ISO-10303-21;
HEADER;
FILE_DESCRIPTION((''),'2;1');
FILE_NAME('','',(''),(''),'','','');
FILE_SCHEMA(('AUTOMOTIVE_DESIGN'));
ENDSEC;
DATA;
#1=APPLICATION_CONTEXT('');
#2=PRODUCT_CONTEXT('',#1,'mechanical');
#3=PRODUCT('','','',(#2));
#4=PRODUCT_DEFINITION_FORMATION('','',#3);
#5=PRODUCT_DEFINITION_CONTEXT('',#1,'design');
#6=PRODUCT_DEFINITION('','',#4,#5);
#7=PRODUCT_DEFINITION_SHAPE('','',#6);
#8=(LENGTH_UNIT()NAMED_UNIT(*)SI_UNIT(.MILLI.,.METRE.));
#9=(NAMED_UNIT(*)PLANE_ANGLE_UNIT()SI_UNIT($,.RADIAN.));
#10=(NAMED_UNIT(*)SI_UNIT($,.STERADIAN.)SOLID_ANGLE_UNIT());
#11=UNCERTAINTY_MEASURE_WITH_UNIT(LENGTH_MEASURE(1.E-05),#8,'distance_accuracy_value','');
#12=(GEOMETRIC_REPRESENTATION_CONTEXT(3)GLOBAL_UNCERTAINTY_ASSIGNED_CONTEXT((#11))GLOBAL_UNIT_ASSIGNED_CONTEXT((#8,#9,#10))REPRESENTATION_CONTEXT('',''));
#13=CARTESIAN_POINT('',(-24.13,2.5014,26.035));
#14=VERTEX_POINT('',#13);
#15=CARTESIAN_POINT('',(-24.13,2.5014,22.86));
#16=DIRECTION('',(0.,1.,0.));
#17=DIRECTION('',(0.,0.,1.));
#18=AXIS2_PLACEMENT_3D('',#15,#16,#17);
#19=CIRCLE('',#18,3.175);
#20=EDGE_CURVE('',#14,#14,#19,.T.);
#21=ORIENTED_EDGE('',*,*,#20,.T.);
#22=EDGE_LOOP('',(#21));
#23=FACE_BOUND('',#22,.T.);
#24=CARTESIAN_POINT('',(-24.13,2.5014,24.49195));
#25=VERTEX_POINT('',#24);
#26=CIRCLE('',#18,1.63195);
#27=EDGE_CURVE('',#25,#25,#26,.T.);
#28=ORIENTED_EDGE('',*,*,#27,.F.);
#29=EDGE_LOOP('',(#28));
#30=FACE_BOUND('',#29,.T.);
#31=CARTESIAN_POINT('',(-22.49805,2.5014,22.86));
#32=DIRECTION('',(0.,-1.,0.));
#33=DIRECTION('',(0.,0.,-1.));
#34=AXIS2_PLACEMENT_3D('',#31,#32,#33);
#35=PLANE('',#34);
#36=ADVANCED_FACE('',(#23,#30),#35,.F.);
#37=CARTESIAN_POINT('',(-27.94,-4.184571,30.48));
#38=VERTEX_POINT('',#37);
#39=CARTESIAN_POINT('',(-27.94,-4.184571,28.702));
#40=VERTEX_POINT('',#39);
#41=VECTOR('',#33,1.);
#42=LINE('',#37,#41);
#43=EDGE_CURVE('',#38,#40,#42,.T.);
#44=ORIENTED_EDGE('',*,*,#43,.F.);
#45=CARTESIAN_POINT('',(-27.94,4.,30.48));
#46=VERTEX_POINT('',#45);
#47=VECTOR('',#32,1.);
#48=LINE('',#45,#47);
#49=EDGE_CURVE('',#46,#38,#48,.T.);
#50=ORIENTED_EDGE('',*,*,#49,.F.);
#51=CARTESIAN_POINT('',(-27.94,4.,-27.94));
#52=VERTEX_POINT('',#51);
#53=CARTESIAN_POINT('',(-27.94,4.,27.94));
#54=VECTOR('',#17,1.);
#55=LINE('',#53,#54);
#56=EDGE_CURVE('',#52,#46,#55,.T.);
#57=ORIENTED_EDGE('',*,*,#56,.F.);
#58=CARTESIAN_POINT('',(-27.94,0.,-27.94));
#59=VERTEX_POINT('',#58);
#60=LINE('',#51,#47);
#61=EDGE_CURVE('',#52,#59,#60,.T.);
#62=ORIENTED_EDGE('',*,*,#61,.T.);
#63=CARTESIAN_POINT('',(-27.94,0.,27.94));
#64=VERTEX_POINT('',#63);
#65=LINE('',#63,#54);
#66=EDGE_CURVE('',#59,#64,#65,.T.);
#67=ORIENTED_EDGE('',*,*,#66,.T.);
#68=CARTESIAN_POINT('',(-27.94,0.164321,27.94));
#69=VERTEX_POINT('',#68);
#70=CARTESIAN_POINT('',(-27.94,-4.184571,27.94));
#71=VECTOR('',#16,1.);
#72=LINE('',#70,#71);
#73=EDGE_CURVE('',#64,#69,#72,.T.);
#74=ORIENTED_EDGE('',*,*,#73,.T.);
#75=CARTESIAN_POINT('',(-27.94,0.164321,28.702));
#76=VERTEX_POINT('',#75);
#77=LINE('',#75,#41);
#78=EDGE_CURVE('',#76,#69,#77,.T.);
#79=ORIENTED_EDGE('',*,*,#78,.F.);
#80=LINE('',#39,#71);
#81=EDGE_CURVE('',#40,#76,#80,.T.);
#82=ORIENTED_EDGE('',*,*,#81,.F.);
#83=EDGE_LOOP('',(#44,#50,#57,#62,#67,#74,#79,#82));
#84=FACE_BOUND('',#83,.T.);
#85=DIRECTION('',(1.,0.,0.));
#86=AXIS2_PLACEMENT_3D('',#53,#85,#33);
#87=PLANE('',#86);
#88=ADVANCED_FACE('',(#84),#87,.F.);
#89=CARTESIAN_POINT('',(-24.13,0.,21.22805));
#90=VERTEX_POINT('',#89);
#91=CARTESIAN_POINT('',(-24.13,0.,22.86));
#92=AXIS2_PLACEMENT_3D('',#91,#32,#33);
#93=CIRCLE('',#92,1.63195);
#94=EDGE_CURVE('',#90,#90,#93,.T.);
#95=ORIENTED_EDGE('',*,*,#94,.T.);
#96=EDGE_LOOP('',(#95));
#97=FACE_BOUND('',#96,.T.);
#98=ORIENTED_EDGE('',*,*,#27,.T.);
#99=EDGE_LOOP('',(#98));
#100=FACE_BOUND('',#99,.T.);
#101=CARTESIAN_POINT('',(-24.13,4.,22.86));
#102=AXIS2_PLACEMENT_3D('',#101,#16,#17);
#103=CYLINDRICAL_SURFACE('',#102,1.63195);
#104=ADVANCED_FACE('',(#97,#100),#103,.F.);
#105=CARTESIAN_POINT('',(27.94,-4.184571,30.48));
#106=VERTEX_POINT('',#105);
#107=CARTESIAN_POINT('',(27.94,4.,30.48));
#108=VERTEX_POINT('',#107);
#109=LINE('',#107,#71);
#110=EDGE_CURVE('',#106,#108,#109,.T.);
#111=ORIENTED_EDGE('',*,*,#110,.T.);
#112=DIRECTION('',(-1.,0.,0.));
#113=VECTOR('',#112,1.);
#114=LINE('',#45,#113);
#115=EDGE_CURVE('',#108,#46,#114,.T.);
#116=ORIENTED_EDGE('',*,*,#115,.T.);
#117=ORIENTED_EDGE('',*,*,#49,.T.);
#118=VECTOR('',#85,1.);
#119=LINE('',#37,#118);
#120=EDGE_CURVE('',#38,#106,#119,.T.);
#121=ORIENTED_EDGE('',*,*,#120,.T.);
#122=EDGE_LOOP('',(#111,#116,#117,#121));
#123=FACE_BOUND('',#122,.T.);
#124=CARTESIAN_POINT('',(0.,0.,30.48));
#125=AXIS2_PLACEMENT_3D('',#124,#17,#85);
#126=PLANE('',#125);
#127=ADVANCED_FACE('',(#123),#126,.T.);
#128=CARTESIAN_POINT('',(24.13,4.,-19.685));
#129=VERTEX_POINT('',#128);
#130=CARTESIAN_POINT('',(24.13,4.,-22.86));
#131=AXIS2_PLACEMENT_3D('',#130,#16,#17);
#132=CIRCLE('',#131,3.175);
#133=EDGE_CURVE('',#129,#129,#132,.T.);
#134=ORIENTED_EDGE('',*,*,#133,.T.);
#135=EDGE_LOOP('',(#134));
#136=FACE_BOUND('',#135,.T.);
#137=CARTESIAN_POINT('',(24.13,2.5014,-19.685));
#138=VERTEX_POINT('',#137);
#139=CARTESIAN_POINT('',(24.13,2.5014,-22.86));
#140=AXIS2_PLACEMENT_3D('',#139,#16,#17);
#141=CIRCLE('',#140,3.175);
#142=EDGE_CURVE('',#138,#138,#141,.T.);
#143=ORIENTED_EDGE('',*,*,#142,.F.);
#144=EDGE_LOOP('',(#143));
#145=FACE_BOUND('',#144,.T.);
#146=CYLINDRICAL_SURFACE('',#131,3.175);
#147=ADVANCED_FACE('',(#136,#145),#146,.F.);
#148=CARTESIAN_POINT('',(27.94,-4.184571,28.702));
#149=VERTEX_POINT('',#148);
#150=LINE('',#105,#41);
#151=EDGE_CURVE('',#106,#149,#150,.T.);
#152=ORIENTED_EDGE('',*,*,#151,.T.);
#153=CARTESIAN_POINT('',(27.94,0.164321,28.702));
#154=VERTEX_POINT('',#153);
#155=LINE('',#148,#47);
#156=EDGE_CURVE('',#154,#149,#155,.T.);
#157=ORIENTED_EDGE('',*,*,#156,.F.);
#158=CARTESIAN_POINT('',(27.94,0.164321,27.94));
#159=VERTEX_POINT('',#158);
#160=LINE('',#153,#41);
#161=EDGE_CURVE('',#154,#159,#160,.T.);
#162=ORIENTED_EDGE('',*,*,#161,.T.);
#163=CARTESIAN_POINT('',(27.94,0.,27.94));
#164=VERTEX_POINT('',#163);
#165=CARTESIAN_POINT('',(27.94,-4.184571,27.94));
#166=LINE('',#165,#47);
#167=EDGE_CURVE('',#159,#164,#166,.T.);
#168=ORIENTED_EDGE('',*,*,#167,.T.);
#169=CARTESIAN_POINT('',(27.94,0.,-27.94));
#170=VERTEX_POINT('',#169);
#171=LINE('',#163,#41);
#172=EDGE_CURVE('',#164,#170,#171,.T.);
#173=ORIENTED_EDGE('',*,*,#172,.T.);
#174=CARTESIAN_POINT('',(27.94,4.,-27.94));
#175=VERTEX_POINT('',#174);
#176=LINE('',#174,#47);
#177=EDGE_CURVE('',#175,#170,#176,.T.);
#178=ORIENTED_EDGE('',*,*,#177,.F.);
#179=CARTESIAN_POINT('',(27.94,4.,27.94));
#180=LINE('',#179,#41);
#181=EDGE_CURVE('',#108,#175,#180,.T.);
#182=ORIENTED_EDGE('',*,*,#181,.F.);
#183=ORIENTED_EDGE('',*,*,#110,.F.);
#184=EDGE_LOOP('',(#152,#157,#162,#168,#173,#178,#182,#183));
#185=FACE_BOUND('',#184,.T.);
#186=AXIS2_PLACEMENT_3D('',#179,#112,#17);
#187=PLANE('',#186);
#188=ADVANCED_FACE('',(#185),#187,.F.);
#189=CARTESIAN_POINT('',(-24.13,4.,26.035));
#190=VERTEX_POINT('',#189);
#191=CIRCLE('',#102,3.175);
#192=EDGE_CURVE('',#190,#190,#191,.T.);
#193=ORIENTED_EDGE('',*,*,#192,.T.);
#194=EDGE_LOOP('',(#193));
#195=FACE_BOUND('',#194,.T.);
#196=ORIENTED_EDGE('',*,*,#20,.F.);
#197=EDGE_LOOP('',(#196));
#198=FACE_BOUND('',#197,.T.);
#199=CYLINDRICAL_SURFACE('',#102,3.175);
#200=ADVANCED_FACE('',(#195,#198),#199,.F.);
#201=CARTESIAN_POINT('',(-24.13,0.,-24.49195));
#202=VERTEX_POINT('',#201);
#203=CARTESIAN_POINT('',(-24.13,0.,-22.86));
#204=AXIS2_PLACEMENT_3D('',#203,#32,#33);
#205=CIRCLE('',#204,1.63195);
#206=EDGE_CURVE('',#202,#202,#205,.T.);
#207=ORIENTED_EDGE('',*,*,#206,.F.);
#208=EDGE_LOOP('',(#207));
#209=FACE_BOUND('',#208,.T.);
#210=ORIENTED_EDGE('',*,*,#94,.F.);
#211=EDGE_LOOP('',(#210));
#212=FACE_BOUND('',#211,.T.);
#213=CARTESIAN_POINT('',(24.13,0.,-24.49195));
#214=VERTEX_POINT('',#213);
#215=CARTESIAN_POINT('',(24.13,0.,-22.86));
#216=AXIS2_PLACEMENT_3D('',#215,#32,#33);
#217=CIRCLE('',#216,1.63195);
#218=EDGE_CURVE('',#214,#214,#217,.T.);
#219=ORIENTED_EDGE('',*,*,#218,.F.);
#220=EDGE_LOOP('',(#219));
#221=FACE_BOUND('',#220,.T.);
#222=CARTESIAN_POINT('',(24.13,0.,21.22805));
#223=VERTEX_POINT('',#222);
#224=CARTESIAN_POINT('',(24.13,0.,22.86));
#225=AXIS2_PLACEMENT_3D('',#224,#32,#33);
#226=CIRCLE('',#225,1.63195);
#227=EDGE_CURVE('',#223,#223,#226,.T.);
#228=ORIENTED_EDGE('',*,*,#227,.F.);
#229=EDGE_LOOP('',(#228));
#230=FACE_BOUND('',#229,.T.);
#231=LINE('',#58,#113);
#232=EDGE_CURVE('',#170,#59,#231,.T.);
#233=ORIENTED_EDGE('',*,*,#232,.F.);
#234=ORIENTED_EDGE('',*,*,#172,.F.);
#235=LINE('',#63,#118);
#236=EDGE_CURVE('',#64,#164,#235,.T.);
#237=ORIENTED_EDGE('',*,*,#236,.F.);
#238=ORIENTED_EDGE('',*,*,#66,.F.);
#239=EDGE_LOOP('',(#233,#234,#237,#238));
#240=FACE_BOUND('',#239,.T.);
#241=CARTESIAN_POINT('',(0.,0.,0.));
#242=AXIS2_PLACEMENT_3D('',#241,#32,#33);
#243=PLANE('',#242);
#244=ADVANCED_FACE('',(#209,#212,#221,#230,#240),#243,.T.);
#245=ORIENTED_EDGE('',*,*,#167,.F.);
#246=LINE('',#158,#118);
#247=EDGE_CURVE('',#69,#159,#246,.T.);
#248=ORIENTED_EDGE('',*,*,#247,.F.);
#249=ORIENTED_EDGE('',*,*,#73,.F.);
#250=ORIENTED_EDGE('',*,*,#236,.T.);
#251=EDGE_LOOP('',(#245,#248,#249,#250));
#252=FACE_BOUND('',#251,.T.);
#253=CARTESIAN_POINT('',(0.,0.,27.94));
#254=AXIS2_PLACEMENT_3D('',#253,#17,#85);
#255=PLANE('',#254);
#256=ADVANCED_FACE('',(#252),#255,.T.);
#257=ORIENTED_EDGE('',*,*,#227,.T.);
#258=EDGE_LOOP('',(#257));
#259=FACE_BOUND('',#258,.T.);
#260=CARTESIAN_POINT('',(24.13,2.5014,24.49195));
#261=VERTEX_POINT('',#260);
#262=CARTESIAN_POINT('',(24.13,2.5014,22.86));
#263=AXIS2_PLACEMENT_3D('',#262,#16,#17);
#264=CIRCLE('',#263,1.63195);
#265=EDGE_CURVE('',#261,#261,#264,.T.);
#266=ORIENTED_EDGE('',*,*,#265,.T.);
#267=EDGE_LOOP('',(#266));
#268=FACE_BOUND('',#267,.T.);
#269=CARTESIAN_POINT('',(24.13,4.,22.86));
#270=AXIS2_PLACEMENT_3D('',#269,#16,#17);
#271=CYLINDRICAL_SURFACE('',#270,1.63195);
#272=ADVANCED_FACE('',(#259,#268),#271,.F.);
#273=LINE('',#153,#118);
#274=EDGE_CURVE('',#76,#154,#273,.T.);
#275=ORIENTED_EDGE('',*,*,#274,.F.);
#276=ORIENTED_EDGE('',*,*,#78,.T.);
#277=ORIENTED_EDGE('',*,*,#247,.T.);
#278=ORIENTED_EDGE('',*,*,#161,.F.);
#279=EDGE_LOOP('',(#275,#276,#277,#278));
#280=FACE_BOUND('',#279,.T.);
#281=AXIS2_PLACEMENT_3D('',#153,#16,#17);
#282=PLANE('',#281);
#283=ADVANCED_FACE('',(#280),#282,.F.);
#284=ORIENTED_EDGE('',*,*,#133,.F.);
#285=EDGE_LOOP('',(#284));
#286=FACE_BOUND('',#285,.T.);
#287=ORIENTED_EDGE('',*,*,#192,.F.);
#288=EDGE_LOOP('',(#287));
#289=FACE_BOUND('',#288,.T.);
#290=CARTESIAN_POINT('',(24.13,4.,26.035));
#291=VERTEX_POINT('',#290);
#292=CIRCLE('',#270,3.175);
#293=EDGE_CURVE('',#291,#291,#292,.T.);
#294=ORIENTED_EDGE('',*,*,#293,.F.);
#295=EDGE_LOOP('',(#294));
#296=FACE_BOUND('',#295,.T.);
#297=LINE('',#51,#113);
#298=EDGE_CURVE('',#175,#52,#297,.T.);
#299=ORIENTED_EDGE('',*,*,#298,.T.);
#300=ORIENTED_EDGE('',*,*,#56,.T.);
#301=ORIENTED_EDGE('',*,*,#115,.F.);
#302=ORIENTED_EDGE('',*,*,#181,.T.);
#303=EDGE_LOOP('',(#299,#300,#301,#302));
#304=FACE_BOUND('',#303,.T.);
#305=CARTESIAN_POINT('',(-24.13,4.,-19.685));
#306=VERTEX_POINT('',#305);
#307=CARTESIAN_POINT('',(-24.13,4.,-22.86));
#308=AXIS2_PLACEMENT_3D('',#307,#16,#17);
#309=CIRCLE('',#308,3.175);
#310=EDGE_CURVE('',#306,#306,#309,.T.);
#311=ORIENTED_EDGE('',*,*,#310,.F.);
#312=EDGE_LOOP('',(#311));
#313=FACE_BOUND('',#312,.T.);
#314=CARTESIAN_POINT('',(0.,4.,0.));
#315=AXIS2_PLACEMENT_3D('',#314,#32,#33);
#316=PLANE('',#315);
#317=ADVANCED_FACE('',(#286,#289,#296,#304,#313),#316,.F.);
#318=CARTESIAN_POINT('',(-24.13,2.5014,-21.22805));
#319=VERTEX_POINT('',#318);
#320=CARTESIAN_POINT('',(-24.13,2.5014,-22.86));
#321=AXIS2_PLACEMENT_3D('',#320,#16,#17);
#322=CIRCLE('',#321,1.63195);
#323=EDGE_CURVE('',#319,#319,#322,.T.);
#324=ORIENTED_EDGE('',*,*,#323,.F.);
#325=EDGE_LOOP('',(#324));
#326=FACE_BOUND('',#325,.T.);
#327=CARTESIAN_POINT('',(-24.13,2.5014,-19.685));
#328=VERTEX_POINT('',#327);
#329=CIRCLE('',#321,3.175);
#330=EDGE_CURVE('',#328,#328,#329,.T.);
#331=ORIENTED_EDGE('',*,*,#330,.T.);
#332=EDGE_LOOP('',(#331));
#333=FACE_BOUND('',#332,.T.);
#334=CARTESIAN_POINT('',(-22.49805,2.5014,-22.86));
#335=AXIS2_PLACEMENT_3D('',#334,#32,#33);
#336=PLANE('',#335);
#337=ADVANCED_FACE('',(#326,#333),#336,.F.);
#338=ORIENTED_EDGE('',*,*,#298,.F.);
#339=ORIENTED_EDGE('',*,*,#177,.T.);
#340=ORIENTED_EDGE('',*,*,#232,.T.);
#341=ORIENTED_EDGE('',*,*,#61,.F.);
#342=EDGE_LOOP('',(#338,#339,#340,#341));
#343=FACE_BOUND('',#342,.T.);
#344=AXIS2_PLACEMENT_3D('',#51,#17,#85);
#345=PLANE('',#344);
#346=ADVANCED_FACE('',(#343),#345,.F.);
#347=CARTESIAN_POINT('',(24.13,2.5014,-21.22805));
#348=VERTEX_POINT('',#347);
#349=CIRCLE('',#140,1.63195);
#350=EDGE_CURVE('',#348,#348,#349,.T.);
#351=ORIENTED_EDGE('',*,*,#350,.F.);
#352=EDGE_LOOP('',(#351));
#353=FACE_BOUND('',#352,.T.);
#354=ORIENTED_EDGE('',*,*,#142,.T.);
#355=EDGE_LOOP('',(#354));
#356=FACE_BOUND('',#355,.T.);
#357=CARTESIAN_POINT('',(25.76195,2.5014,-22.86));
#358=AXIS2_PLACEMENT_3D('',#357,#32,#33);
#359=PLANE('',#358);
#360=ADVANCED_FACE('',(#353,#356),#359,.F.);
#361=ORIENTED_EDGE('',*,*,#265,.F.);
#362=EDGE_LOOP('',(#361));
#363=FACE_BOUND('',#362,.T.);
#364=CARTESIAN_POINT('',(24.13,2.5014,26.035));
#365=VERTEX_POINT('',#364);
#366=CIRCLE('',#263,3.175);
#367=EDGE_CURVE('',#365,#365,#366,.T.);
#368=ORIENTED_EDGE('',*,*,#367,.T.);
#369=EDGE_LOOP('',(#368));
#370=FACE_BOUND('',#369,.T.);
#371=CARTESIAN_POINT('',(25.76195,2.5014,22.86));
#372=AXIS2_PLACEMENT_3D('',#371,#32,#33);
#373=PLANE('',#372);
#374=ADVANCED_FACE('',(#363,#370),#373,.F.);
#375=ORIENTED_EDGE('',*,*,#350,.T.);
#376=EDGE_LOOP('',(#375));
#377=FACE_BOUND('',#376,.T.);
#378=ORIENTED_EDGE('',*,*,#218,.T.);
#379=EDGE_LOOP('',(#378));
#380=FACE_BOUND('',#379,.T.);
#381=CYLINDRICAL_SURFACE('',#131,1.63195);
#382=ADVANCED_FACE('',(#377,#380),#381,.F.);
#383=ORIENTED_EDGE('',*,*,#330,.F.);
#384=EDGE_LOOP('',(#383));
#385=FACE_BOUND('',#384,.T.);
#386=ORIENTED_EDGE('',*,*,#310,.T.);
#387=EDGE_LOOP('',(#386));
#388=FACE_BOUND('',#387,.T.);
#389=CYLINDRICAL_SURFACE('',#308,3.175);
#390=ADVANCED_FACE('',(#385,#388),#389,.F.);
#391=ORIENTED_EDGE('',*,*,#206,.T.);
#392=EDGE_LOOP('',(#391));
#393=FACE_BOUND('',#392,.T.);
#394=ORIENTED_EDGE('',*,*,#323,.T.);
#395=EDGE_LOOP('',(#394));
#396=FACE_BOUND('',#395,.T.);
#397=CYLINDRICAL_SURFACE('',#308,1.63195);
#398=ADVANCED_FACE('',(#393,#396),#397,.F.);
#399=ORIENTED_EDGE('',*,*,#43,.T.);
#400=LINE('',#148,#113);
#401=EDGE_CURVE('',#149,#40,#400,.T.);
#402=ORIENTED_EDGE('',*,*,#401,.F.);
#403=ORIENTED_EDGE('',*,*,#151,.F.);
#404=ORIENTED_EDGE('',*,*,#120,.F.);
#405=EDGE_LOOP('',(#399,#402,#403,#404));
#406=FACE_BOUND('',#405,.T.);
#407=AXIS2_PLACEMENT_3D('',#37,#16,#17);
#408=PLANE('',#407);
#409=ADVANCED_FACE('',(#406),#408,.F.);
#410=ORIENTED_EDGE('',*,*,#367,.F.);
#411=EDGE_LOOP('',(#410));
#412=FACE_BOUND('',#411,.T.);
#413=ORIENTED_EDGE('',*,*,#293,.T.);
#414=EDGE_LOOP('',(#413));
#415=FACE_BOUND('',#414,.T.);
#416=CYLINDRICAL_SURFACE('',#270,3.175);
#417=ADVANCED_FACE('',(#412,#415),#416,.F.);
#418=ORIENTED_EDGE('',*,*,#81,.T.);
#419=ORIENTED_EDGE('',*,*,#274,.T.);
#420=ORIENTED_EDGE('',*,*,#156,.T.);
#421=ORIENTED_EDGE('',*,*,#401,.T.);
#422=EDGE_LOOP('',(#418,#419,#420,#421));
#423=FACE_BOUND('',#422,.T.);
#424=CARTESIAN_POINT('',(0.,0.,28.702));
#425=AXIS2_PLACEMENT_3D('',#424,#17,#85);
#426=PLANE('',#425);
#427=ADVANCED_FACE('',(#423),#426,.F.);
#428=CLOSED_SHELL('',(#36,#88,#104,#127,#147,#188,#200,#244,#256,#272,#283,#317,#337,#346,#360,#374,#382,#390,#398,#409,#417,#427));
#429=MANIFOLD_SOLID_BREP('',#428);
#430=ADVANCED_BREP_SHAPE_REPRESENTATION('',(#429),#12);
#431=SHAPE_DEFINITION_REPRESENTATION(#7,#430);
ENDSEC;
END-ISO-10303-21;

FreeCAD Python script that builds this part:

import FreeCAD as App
import Part
import Sketcher
from FreeCAD import Vector
Q = App.Units.Quantity


def add_polygon(sketch, points):
    """Adds a closed chain of lines whose ends are joined by coincident constraints."""
    first, n = sketch.GeometryCount, len(points)
    for a, b in zip(points, points[1:] + points[:1]):
        sketch.addGeometry(Part.LineSegment(App.Vector(*a, 0), App.Vector(*b, 0)), False)
    for i in range(n):
        sketch.addConstraint(Sketcher.Constraint("Coincident", first + i, 2, first + (i + 1) % n, 1))

doc = App.newDocument("Part")
params = doc.addObject("Spreadsheet::Sheet", "Params")
for row, (alias, value) in enumerate([
    ("sketch1_width", "2.2 in"),
    ("pad1_length", "4 mm"),
    ("hole_diameter", "0.1285 in"),
    ("hole_cbore_diameter", "0.25 in"),
    ("hole_cbore_depth", "0.059 in"),
    ("sketch3_width", "2.2 in"),
    ("pad2_length", "0.1 in"),
    ("sketch4_width", "2.2 in"),
    ("pocket1_length", "0.03 in"),
], start=1):
    params.set(f"A{row}", alias)
    params.set(f"B{row}", "=" + value)
    params.setAlias(f"B{row}", alias)

body = doc.addObject("PartDesign::Body", "Body")

sketch1 = body.newObject("Sketcher::SketchObject", "Sketch")
sketch1.AttachmentSupport = (doc.getObject("XZ_Plane"), [""])
sketch1.MapMode = "FlatFace"
add_polygon(sketch1, [(-28, -28), (-28, 28), (28, 28), (28, -28)])
sketch1.addConstraint(Sketcher.Constraint("Vertical", 0))
sketch1.addConstraint(Sketcher.Constraint("Horizontal", 1))
sketch1.addConstraint(Sketcher.Constraint("Vertical", 2))
sketch1.addConstraint(Sketcher.Constraint("Horizontal", 3))
sketch1.addConstraint(Sketcher.Constraint("Symmetric", 0, 2, 2, 2, -1, 1))
sketch1.addConstraint(Sketcher.Constraint("Equal", 3, 0))
sketch1.addConstraint(Sketcher.Constraint("DistanceX", 1, 1, 1, 2, Q("2.2 in")))
sketch1.setExpression("Constraints[10]", "Params.sketch1_width")
pad1 = body.newObject("PartDesign::Pad", "Pad")
pad1.Profile = sketch1
pad1.setExpression("Length", "Params.pad1_length")
pad1.Reversed = True

sketch2 = body.newObject("Sketcher::SketchObject", "Sketch001")
sketch2.AttachmentSupport = (doc.getObject("XZ_Plane"), [""])
sketch2.MapMode = "FlatFace"
sketch2.AttachmentOffset = App.Placement(Vector(0, 0, -4), App.Rotation())
sketch2.addGeometry(Part.Circle(Vector(-24.1, -22.9, 0), Vector(0, 0, 1), 1.6), False)
sketch2.addGeometry(Part.Circle(Vector(24.1, -22.9, 0), Vector(0, 0, 1), 1.6), False)
sketch2.addGeometry(Part.Circle(Vector(24.1, 22.9, 0), Vector(0, 0, 1), 1.6), False)
sketch2.addGeometry(Part.Circle(Vector(-24.1, 22.9, 0), Vector(0, 0, 1), 1.6), False)
sketch2.addConstraint(Sketcher.Constraint("Equal", 0, 1))
sketch2.addConstraint(Sketcher.Constraint("Equal", 1, 2))
sketch2.addConstraint(Sketcher.Constraint("Equal", 2, 3))
sketch2.addConstraint(Sketcher.Constraint("Symmetric", 0, 3, 2, 3, -1, 1))
sketch2.addConstraint(Sketcher.Constraint("Symmetric", 1, 3, 3, 3, -1, 1))
sketch2.addConstraint(Sketcher.Constraint("Symmetric", 0, 3, 1, 3, -2))
sketch2.addConstraint(Sketcher.Constraint("Diameter", 0, Q("0.1285 in")))
sketch2.addConstraint(Sketcher.Constraint("DistanceY", 0, 3, -1, 1, Q("0.9 in")))
sketch2.addConstraint(Sketcher.Constraint("DistanceX", 0, 3, 1, 3, Q("1.9 in")))
doc.recompute()
hole = body.newObject("PartDesign::Hole", "Hole")
hole.Profile = sketch2
hole.ThreadType = "None"
hole.setExpression("Diameter", "Params.hole_diameter")
hole.DepthType = "ThroughAll"
hole.HoleCutType = "Counterbore"
hole.setExpression("HoleCutDiameter", "Params.hole_cbore_diameter")
hole.setExpression("HoleCutDepth", "Params.hole_cbore_depth")
hole.Reversed = True

sketch3 = body.newObject("Sketcher::SketchObject", "Sketch002")
sketch3.AttachmentSupport = (doc.getObject("XY_Plane"), [""])
sketch3.MapMode = "FlatFace"
sketch3.AttachmentOffset = App.Placement(Vector(0, 0, 1.1 * 25.4), App.Rotation())
add_polygon(sketch3, [(-28, 4), (-28, -4), (28, -4), (28, 4)])
sketch3.addConstraint(Sketcher.Constraint("Vertical", 0))
sketch3.addConstraint(Sketcher.Constraint("Horizontal", 1))
sketch3.addConstraint(Sketcher.Constraint("Vertical", 2))
sketch3.addConstraint(Sketcher.Constraint("Horizontal", 3))
sketch3.addConstraint(Sketcher.Constraint("DistanceX", 1, 1, 1, 2, Q("2.2 in")))
sketch3.addConstraint(Sketcher.Constraint("DistanceX", 0, 2, -1, 1, Q("1.1 in")))
sketch3.addConstraint(Sketcher.Constraint("DistanceY", 0, 2, 0, 1, 8.184571))
sketch3.addConstraint(Sketcher.Constraint("DistanceY", -1, 1, 2, 2, 4.0))
sketch3.setExpression("Constraints[8]", "Params.sketch3_width")
pad2 = body.newObject("PartDesign::Pad", "Pad001")
pad2.Profile = sketch3
pad2.setExpression("Length", "Params.pad2_length")

sketch4 = body.newObject("Sketcher::SketchObject", "Sketch003")
sketch4.AttachmentSupport = (doc.getObject("XY_Plane"), [""])
sketch4.MapMode = "FlatFace"
sketch4.AttachmentOffset = App.Placement(Vector(0, 0, 1.1 * 25.4), App.Rotation())
add_polygon(sketch4, [(27.9, 0.2), (27.9, -4.2), (-27.9, -4.2), (-27.9, 0.2)])
sketch4.addConstraint(Sketcher.Constraint("Vertical", 0))
sketch4.addConstraint(Sketcher.Constraint("Horizontal", 1))
sketch4.addConstraint(Sketcher.Constraint("Vertical", 2))
sketch4.addConstraint(Sketcher.Constraint("Horizontal", 3))
sketch4.addConstraint(Sketcher.Constraint("DistanceX", 1, 2, 1, 1, Q("2.2 in")))
sketch4.addConstraint(Sketcher.Constraint("DistanceX", -1, 1, 0, 2, Q("1.1 in")))
sketch4.addConstraint(Sketcher.Constraint("DistanceY", 0, 2, 0, 1, 4.348892))
sketch4.addConstraint(Sketcher.Constraint("DistanceY", 0, 2, -1, 1, 4.184571))
sketch4.setExpression("Constraints[8]", "Params.sketch4_width")
pocket1 = body.newObject("PartDesign::Pocket", "Pocket")
pocket1.Profile = sketch4
pocket1.setExpression("Length", "Params.pocket1_length")
pocket1.Reversed = True

doc.recompute()
